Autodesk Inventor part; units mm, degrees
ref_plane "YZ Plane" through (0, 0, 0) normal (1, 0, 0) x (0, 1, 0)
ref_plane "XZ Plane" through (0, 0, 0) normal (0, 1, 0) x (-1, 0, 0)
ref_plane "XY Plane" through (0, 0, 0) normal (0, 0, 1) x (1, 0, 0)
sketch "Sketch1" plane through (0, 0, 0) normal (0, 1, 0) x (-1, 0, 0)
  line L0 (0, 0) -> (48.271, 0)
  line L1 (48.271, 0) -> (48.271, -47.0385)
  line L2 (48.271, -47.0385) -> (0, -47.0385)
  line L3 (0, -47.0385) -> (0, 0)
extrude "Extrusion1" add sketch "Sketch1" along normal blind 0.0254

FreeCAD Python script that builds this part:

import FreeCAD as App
import Part
import Sketcher
from FreeCAD import Vector
Q = App.Units.Quantity


def add_polygon(sketch, points):
    """Adds a closed chain of lines whose ends are joined by coincident constraints."""
    first, n = sketch.GeometryCount, len(points)
    for a, b in zip(points, points[1:] + points[:1]):
        sketch.addGeometry(Part.LineSegment(App.Vector(*a, 0), App.Vector(*b, 0)), False)
    for i in range(n):
        sketch.addConstraint(Sketcher.Constraint("Coincident", first + i, 2, first + (i + 1) % n, 1))

doc = App.newDocument("Part")
body = doc.addObject("PartDesign::Body", "Body")

# Sketch on XZ plane
sketch1 = doc.addObject("Sketcher::SketchObject", "Sketch")
body.addObject(sketch1)
sketch1.AttachmentSupport = (doc.XZ_Plane, [""])
sketch1.MapMode = "FlatFace"
add_polygon(sketch1, [(-48, 0), (0, 0), (0, -47), (-48, -47)])  # lines 0-3
sketch1.addConstraint([
    Sketcher.Constraint("Horizontal", 0),
    Sketcher.Constraint("Vertical", 1),
    Sketcher.Constraint("Horizontal", 2),
    Sketcher.Constraint("Vertical", 3),
    Sketcher.Constraint("Coincident", 0, 2, -1, 1),
    Sketcher.Constraint("DistanceY", 1, 2, 1, 1, Q("1.8519 in")),
    Sketcher.Constraint("DistanceX", 0, 1, 0, 2, 48.271),
])
pad1 = doc.addObject("PartDesign::Pad", "Pad")
body.addObject(pad1)
pad1.Profile = sketch1
pad1.Length = Q("0.001 in")
pad1.Reversed = True

doc.recompute()
